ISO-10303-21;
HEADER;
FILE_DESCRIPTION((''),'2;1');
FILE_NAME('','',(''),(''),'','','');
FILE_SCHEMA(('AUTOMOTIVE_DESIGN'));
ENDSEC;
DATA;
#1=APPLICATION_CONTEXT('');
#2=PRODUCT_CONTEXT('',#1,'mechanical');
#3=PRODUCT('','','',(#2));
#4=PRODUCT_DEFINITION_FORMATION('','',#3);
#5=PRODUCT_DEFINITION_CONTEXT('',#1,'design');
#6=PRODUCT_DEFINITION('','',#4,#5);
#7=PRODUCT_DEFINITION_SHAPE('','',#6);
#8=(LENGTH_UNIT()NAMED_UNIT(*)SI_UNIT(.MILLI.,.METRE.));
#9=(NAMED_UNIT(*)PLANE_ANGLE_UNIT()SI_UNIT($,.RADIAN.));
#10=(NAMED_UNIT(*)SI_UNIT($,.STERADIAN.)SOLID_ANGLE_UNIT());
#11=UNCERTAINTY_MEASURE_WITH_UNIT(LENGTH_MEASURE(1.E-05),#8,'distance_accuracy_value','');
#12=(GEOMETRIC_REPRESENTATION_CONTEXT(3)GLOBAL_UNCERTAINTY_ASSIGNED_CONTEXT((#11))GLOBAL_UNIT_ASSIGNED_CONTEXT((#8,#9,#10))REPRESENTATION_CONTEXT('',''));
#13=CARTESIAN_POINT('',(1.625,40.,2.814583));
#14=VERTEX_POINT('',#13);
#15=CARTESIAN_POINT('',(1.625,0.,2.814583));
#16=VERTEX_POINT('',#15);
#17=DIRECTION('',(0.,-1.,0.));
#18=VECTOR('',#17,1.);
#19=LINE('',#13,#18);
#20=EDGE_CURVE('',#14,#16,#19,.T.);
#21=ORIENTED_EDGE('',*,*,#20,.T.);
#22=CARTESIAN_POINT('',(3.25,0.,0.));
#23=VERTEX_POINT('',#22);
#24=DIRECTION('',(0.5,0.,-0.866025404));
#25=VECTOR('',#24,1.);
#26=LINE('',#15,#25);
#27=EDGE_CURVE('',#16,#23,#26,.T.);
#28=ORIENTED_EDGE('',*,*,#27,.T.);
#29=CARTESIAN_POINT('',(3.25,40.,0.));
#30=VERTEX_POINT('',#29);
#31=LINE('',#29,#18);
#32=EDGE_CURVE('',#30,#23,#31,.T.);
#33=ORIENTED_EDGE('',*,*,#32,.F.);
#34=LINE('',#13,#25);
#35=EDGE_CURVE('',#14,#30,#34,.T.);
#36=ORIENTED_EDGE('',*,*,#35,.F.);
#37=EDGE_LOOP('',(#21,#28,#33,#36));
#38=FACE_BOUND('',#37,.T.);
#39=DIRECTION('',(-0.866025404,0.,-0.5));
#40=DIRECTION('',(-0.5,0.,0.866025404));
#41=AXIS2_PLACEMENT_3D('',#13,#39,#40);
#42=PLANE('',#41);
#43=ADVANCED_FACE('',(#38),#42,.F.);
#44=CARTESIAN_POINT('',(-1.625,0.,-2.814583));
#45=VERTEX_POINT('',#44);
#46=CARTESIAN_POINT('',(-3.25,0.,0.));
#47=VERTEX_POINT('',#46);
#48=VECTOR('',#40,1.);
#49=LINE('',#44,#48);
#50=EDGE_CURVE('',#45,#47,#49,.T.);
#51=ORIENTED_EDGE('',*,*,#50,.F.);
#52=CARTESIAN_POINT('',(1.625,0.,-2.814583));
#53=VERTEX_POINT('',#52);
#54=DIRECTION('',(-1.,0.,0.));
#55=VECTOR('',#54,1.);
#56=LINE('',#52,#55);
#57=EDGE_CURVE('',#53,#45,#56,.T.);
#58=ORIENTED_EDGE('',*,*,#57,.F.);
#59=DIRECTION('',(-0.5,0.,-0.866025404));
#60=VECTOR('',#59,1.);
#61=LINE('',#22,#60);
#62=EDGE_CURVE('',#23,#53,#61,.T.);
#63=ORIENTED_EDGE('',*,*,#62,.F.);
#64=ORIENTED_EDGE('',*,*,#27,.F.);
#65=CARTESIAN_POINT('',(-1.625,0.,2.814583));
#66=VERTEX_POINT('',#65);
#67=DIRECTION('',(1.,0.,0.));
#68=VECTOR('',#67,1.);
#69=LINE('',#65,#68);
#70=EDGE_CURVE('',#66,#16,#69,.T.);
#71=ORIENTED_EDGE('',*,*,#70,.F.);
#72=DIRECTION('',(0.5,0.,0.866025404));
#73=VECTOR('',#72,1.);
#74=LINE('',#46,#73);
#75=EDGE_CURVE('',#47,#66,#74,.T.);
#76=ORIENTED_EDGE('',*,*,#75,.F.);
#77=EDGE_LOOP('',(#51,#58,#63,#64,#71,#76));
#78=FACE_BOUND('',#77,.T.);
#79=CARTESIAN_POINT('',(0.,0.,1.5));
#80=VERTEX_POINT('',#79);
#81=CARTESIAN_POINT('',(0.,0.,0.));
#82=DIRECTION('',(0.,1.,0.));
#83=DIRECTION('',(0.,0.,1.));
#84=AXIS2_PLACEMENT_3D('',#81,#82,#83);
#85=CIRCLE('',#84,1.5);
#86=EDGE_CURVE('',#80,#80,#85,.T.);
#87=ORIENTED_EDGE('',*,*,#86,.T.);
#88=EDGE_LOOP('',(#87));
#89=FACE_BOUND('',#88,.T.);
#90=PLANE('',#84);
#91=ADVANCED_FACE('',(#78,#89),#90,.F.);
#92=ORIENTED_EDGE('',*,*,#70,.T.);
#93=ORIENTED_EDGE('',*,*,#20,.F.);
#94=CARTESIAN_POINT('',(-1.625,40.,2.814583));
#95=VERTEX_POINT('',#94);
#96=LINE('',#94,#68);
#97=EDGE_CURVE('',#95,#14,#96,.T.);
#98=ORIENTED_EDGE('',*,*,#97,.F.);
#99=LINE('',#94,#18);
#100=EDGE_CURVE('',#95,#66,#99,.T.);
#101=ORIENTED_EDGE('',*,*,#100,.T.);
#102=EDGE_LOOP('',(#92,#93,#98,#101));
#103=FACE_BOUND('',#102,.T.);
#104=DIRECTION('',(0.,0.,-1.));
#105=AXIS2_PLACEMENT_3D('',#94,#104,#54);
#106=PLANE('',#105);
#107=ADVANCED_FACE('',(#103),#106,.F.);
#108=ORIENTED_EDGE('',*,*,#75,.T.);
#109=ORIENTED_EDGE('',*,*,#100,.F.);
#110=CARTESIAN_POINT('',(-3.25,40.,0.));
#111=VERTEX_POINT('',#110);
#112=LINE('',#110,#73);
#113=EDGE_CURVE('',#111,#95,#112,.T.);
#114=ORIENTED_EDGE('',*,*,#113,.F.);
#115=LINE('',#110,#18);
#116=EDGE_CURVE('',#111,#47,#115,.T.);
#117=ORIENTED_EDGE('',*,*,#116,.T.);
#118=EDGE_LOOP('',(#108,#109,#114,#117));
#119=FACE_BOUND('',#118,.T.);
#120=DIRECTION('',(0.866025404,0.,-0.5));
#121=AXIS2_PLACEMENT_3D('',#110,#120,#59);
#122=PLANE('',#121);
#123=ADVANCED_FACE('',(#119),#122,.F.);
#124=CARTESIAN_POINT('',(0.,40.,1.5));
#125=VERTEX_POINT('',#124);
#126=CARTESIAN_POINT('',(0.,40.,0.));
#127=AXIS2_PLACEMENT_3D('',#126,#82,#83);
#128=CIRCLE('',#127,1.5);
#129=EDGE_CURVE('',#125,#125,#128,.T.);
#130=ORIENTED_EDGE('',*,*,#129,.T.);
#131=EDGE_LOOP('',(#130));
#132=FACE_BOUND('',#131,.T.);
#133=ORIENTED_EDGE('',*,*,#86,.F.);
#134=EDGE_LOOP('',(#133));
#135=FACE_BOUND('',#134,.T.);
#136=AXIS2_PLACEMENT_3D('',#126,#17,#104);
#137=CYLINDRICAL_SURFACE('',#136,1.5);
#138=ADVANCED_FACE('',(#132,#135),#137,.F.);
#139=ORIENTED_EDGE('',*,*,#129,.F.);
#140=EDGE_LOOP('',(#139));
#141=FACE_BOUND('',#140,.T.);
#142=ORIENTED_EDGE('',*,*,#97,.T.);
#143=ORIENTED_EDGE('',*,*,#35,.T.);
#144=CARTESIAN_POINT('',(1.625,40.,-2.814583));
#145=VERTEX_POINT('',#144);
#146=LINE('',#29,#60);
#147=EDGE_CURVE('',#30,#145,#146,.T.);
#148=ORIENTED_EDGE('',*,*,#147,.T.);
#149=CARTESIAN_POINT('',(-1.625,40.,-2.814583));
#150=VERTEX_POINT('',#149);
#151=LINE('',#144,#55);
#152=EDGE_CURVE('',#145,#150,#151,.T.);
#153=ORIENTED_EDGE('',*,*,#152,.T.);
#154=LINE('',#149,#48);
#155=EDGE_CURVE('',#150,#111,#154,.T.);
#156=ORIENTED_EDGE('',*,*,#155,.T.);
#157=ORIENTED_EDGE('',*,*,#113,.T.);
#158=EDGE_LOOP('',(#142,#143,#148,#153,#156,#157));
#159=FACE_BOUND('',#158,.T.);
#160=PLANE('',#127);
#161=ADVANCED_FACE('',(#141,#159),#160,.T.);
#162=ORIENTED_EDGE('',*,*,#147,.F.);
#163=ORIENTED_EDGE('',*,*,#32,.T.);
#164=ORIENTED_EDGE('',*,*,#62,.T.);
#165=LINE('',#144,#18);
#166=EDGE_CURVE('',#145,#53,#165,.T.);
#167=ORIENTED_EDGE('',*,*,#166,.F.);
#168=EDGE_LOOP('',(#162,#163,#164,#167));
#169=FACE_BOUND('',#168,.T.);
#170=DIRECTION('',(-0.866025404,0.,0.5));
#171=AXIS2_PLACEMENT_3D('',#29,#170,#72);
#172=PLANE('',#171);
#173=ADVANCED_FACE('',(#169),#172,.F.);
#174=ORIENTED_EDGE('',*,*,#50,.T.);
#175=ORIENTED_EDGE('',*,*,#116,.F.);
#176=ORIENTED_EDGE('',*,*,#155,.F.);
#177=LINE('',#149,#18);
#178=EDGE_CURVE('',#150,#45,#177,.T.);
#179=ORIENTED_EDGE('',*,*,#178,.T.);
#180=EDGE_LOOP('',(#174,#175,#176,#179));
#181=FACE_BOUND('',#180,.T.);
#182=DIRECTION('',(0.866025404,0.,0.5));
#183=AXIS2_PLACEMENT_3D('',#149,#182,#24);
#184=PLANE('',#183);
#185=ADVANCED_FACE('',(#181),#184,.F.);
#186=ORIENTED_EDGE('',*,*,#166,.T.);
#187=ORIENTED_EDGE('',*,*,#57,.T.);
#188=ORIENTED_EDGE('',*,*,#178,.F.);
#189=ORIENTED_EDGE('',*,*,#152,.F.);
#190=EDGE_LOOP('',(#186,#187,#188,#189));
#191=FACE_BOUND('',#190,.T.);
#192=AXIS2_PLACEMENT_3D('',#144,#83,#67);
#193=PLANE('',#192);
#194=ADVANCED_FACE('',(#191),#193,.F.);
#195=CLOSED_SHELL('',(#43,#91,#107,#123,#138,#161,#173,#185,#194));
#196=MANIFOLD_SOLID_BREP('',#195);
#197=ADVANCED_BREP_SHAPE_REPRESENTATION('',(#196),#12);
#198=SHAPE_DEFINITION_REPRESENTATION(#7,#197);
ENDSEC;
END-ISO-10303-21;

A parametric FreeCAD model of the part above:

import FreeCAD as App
import Part
import Sketcher
from FreeCAD import Vector
Q = App.Units.Quantity

doc = App.newDocument("Part")
params = doc.addObject("Spreadsheet::Sheet", "Params")
for row, (alias, value) in enumerate([
    ("sketch1_diameter", "3 mm"),
    ("sketch1_width", "3.25 mm"),
    ("pad1_length", "40 mm"),
], start=1):
    params.set(f"A{row}", alias)
    params.set(f"B{row}", "=" + value)
    params.setAlias(f"B{row}", alias)

body = doc.addObject("PartDesign::Body", "Body")

# Sketch on XZ plane
sketch1 = body.newObject("Sketcher::SketchObject", "Sketch")
sketch1.AttachmentSupport = (doc.getObject("XZ_Plane"), [""])
sketch1.MapMode = "FlatFace"
sketch1.addGeometry([
    Part.LineSegment(Vector(-1.6, -2.8, 0), Vector(-3.2, 0, 0)),  # 0
    Part.LineSegment(Vector(-3.2, 0, 0), Vector(-1.6, 2.8, 0)),  # 1
    Part.LineSegment(Vector(-1.6, 2.8, 0), Vector(1.6, 2.8, 0)),  # 2
    Part.LineSegment(Vector(1.6, 2.8, 0), Vector(3.2, 0, 0)),  # 3
    Part.LineSegment(Vector(3.2, 0, 0), Vector(1.6, -2.8, 0)),  # 4
    Part.LineSegment(Vector(1.6, -2.8, 0), Vector(-1.6, -2.8, 0)),  # 5
    Part.Circle(Vector(0, 0, 0), Vector(0, 0, 1), 1.5),  # 6
], False)
sketch1.addConstraint([
    Sketcher.Constraint("Coincident", 0, 2, 1, 1),
    Sketcher.Constraint("Coincident", 1, 2, 2, 1),
    Sketcher.Constraint("Coincident", 2, 2, 3, 1),
    Sketcher.Constraint("Coincident", 3, 2, 4, 1),
    Sketcher.Constraint("Coincident", 4, 2, 5, 1),
    Sketcher.Constraint("Coincident", 5, 2, 0, 1),
    Sketcher.Constraint("Horizontal", 2),
    Sketcher.Constraint("Horizontal", 5),
    Sketcher.Constraint("Coincident", 6, 3, -1, 1),
    Sketcher.Constraint("Symmetric", 0, 2, 3, 2, -1, 1),
    Sketcher.Constraint("Symmetric", 1, 2, 4, 2, -1, 1),
    Sketcher.Constraint("PointOnObject", 0, 2, -1),
    Sketcher.Constraint("Parallel", 0, 3),
    Sketcher.Constraint("Vertical", 2, 2, 4, 2),
    Sketcher.Constraint("Diameter", 6, Q("3 mm")),
    Sketcher.Constraint("Angle", 0, Q("120 deg")),
    Sketcher.Constraint("DistanceX", 2, 1, 2, 2, Q("3.25 mm")),
    Sketcher.Constraint("DistanceX", 0, 2, 3, 2, Q("6.5 mm")),
])
sketch1.setExpression("Constraints[14]", "Params.sketch1_diameter")
sketch1.setExpression("Constraints[16]", "Params.sketch1_width")
pad1 = body.newObject("PartDesign::Pad", "Pad")
pad1.Profile = sketch1
pad1.setExpression("Length", "Params.pad1_length")
pad1.Reversed = True

doc.recompute()
